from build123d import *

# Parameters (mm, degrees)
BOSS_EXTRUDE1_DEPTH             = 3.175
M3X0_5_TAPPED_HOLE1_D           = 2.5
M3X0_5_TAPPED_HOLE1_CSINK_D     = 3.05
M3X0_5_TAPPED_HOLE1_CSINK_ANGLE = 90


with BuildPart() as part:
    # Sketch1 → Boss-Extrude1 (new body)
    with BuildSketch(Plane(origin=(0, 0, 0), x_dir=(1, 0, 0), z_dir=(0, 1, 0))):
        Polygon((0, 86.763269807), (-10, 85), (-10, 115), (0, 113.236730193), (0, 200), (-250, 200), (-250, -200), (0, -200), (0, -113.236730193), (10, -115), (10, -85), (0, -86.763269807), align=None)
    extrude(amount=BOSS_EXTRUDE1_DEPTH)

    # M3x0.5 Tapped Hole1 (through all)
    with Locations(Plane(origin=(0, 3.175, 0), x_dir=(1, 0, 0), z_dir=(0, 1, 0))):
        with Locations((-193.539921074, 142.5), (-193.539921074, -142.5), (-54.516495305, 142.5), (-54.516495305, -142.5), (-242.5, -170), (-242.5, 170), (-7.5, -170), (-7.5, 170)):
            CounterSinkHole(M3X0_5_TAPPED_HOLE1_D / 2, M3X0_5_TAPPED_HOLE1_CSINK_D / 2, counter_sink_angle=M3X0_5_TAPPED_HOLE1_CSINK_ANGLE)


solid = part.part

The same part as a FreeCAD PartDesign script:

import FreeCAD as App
import Part
import Sketcher

V = App.Vector
Q = App.Units.Quantity

doc = App.newDocument("Part")
body = doc.addObject("PartDesign::Body", "Body")

# Sketch on XZ plane
sketch1 = body.newObject("Sketcher::SketchObject", "Sketch")
sketch1.AttachmentSupport = (doc.getObject("XZ_Plane"), [""])
sketch1.MapMode = "FlatFace"
sketch1.addGeometry([
    Part.LineSegment(V(0, -86.76327, 0), V(-10, -85, 0)),  # 0
    Part.LineSegment(V(-10, -85, 0), V(-10, -115, 0)),  # 1
    Part.LineSegment(V(-10, -115, 0), V(0, -113.23673, 0)),  # 2
    Part.LineSegment(V(0, -113.23673, 0), V(0, -200, 0)),  # 3
    Part.LineSegment(V(0, -200, 0), V(-250, -200, 0)),  # 4
    Part.LineSegment(V(-250, -200, 0), V(-250, 200, 0)),  # 5
    Part.LineSegment(V(-250, 200, 0), V(0, 200, 0)),  # 6
    Part.LineSegment(V(0, 200, 0), V(0, 113.23673, 0)),  # 7
    Part.LineSegment(V(0, 113.23673, 0), V(10, 115, 0)),  # 8
    Part.LineSegment(V(10, 115, 0), V(10, 85, 0)),  # 9
    Part.LineSegment(V(10, 85, 0), V(0, 86.76327, 0)),  # 10
    Part.LineSegment(V(0, 86.76327, 0), V(0, -86.76327, 0)),  # 11
], False)
sketch1.addConstraint([
    Sketcher.Constraint("Coincident", 0, 2, 1, 1),
    Sketcher.Constraint("Coincident", 1, 2, 2, 1),
    Sketcher.Constraint("Coincident", 2, 2, 3, 1),
    Sketcher.Constraint("Coincident", 3, 2, 4, 1),
    Sketcher.Constraint("Coincident", 4, 2, 5, 1),
    Sketcher.Constraint("Coincident", 5, 2, 6, 1),
    Sketcher.Constraint("Coincident", 6, 2, 7, 1),
    Sketcher.Constraint("Coincident", 7, 2, 8, 1),
    Sketcher.Constraint("Coincident", 8, 2, 9, 1),
    Sketcher.Constraint("Coincident", 9, 2, 10, 1),
    Sketcher.Constraint("Coincident", 10, 2, 11, 1),
    Sketcher.Constraint("Coincident", 11, 2, 0, 1),
    Sketcher.Constraint("Vertical", 1),
    Sketcher.Constraint("Vertical", 3),
    Sketcher.Constraint("Horizontal", 4),
    Sketcher.Constraint("Vertical", 5),
    Sketcher.Constraint("Horizontal", 6),
    Sketcher.Constraint("Vertical", 7),
    Sketcher.Constraint("Vertical", 9),
    Sketcher.Constraint("Vertical", 11),
    Sketcher.Constraint("Symmetric", 3, 2, 6, 2, -1, 1),
    Sketcher.Constraint("Symmetric", 1, 2, 8, 2, -1, 1),
    Sketcher.Constraint("Symmetric", 10, 2, 11, 2, -1, 1),
    Sketcher.Constraint("Symmetric", 2, 2, 7, 2, -1),
    Sketcher.Constraint("Parallel", 0, 10),
    Sketcher.Constraint("Equal", 0, 2),
    Sketcher.Constraint("DistanceX", 4, 2, 4, 1, 250.0),
    Sketcher.Constraint("DistanceY", 1, 2, 1, 1, 30.0),
    Sketcher.Constraint("DistanceY", 5, 1, 5, 2, 400.0),
    Sketcher.Constraint("Angle", 0, Q("170 deg")),
    Sketcher.Constraint("DistanceX", 0, 2, -1, 1, 10.0),
    Sketcher.Constraint("DistanceY", 0, 2, -1, 1, 85.0),
])
pad1 = body.newObject("PartDesign::Pad", "Pad")
pad1.Profile = sketch1
pad1.Length = 3.175
pad1.Reversed = True

# Sketch on XZ plane
sketch2 = body.newObject("Sketcher::SketchObject", "Sketch001")
sketch2.AttachmentSupport = (doc.getObject("XZ_Plane"), [""])
sketch2.MapMode = "FlatFace"
sketch2.AttachmentOffset = App.Placement(V(0, 0, -3.175), App.Rotation())
sketch2.addGeometry([
    Part.Circle(V(-193.539921, -142.5, 0), V(0, 0, 1), 1.25),  # 0
    Part.Circle(V(-193.539921, 142.5, 0), V(0, 0, 1), 1.25),  # 1
    Part.Circle(V(-54.516495, -142.5, 0), V(0, 0, 1), 1.25),  # 2
    Part.Circle(V(-54.516495, 142.5, 0), V(0, 0, 1), 1.25),  # 3
    Part.Circle(V(-242.5, 170, 0), V(0, 0, 1), 1.25),  # 4
    Part.Circle(V(-242.5, -170, 0), V(0, 0, 1), 1.25),  # 5
    Part.Circle(V(-7.5, 170, 0), V(0, 0, 1), 1.25),  # 6
    Part.Circle(V(-7.5, -170, 0), V(0, 0, 1), 1.25),  # 7
], False)
sketch2.addConstraint([
    Sketcher.Constraint("Equal", 0, 1),
    Sketcher.Constraint("Equal", 1, 2),
    Sketcher.Constraint("Equal", 2, 3),
    Sketcher.Constraint("Equal", 3, 4),
    Sketcher.Constraint("Equal", 4, 5),
    Sketcher.Constraint("Equal", 5, 6),
    Sketcher.Constraint("Equal", 6, 7),
    Sketcher.Constraint("Symmetric", 0, 3, 1, 3, -1),
    Sketcher.Constraint("Symmetric", 2, 3, 3, 3, -1),
    Sketcher.Constraint("Symmetric", 4, 3, 5, 3, -1),
    Sketcher.Constraint("Symmetric", 6, 3, 7, 3, -1),
    Sketcher.Constraint("Horizontal", 0, 3, 2, 3),
    Sketcher.Constraint("Horizontal", 4, 3, 6, 3),
    Sketcher.Constraint("Diameter", 0, 2.5),
    Sketcher.Constraint("DistanceY", -1, 1, 4, 3, 170.0),
    Sketcher.Constraint("DistanceY", 0, 3, 1, 3, 285.0),
    Sketcher.Constraint("DistanceX", 4, 3, 6, 3, 235.0),
    Sketcher.Constraint("DistanceX", 4, 3, -1, 1, 242.5),
    Sketcher.Constraint("DistanceX", 0, 3, -1, 1, 193.539921),
    Sketcher.Constraint("DistanceX", 2, 3, -1, 1, 54.516495),
])
doc.recompute()
hole = body.newObject("PartDesign::Hole", "Hole")
hole.Profile = sketch2
hole.ThreadType = "None"
hole.Diameter = 2.5
hole.DepthType = "ThroughAll"
hole.HoleCutType = "Countersink"
hole.HoleCutDiameter = 3.05
hole.HoleCutCountersinkAngle = 90
hole.Reversed = True

doc.recompute()
